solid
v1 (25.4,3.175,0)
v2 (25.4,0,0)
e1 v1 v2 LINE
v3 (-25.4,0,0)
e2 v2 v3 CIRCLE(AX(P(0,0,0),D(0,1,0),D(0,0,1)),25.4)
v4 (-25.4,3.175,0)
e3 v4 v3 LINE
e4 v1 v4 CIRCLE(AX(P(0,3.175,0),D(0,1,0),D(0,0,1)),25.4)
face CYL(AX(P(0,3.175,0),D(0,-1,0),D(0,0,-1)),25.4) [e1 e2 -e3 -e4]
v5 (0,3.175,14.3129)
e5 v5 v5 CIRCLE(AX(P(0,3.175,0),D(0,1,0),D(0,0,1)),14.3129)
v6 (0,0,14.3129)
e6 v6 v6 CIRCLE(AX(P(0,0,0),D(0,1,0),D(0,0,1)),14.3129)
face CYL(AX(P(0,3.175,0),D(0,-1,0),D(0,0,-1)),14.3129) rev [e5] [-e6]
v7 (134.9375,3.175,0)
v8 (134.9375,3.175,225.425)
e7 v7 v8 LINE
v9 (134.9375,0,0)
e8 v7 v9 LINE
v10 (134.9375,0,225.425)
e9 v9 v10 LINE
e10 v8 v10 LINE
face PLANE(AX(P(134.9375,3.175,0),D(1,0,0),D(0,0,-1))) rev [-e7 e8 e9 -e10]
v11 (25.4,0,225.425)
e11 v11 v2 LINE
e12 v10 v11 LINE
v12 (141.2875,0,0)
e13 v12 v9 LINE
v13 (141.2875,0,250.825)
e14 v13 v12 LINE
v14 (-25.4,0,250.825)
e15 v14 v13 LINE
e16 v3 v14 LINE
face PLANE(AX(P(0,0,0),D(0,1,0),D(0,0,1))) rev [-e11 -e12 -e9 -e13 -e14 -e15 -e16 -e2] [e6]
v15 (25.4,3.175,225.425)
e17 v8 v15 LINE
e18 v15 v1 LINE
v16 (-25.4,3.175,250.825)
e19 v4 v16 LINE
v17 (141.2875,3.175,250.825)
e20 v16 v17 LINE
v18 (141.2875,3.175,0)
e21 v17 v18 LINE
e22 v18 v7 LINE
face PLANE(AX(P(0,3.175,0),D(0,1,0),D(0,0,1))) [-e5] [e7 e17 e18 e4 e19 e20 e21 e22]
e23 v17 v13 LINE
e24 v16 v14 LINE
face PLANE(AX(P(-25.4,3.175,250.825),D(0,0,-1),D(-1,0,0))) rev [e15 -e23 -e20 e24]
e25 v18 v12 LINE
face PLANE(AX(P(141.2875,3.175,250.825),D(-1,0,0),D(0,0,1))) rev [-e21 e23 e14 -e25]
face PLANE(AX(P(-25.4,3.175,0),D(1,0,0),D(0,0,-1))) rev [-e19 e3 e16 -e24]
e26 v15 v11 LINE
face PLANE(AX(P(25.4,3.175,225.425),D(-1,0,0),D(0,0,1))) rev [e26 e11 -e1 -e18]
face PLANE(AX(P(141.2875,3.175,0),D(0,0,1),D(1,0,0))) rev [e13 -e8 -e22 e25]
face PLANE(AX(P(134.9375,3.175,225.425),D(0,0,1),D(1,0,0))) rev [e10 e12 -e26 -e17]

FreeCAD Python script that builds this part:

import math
import FreeCAD as App
import Part
import Sketcher
from FreeCAD import Vector
Q = App.Units.Quantity

doc = App.newDocument("Part")
body = doc.addObject("PartDesign::Body", "Body")

# Sketch on XZ plane
sketch1 = body.newObject("Sketcher::SketchObject", "Sketch")
sketch1.AttachmentSupport = (doc.getObject("XZ_Plane"), [""])
sketch1.MapMode = "FlatFace"
sketch1.addGeometry(Part.LineSegment(Vector(-25, 0, 0), Vector(-25, 251, 0)), False)
sketch1.addGeometry(Part.LineSegment(Vector(-25, 251, 0), Vector(141, 251, 0)), False)
sketch1.addGeometry(Part.LineSegment(Vector(141, 251, 0), Vector(141, 0, 0)), False)
sketch1.addGeometry(Part.LineSegment(Vector(141, 0, 0), Vector(135, 0, 0)), False)
sketch1.addGeometry(Part.LineSegment(Vector(135, 0, 0), Vector(135, 225, 0)), False)
sketch1.addGeometry(Part.LineSegment(Vector(135, 225, 0), Vector(25, 225, 0)), False)
sketch1.addGeometry(Part.LineSegment(Vector(25, 225, 0), Vector(25, 0, 0)), False)
sketch1.addGeometry(Part.ArcOfCircle(Part.Circle(Vector(0, 0, 0), Vector(0, 0, 1), 25), math.radians(180), math.radians(360)), False)
sketch1.addGeometry(Part.Circle(Vector(0, 0, 0), Vector(0, 0, 1), 14), False)
sketch1.addConstraint(Sketcher.Constraint("Coincident", 0, 2, 1, 1))
sketch1.addConstraint(Sketcher.Constraint("Coincident", 1, 2, 2, 1))
sketch1.addConstraint(Sketcher.Constraint("Coincident", 2, 2, 3, 1))
sketch1.addConstraint(Sketcher.Constraint("Coincident", 3, 2, 4, 1))
sketch1.addConstraint(Sketcher.Constraint("Coincident", 4, 2, 5, 1))
sketch1.addConstraint(Sketcher.Constraint("Coincident", 5, 2, 6, 1))
sketch1.addConstraint(Sketcher.Constraint("Tangent", 6, 2, 7, 2))
sketch1.addConstraint(Sketcher.Constraint("Tangent", 7, 1, 0, 1))
sketch1.addConstraint(Sketcher.Constraint("Vertical", 0))
sketch1.addConstraint(Sketcher.Constraint("Horizontal", 1))
sketch1.addConstraint(Sketcher.Constraint("Vertical", 2))
sketch1.addConstraint(Sketcher.Constraint("Horizontal", 3))
sketch1.addConstraint(Sketcher.Constraint("Vertical", 4))
sketch1.addConstraint(Sketcher.Constraint("Horizontal", 5))
sketch1.addConstraint(Sketcher.Constraint("Vertical", 6))
sketch1.addConstraint(Sketcher.Constraint("Coincident", 7, 3, -1, 1))
sketch1.addConstraint(Sketcher.Constraint("Coincident", 8, 3, -1, 1))
sketch1.addConstraint(Sketcher.Constraint("PointOnObject", 2, 2, -1))
sketch1.addConstraint(Sketcher.Constraint("Radius", 7, Q("1 in")))
sketch1.addConstraint(Sketcher.Constraint("Diameter", 8, Q("1.127 in")))
sketch1.addConstraint(Sketcher.Constraint("DistanceY", 4, 2, 1, 2, Q("1 in")))
sketch1.addConstraint(Sketcher.Constraint("DistanceX", 3, 2, 3, 1, Q("0.25 in")))
sketch1.addConstraint(Sketcher.Constraint("DistanceX", 1, 1, 1, 2, Q("6.5625 in")))
sketch1.addConstraint(Sketcher.Constraint("DistanceY", 0, 1, 0, 2, Q("9.875 in")))
pad1 = body.newObject("PartDesign::Pad", "Pad")
pad1.Profile = sketch1
pad1.Length = Q("0.125 in")
pad1.Reversed = True

doc.recompute()
